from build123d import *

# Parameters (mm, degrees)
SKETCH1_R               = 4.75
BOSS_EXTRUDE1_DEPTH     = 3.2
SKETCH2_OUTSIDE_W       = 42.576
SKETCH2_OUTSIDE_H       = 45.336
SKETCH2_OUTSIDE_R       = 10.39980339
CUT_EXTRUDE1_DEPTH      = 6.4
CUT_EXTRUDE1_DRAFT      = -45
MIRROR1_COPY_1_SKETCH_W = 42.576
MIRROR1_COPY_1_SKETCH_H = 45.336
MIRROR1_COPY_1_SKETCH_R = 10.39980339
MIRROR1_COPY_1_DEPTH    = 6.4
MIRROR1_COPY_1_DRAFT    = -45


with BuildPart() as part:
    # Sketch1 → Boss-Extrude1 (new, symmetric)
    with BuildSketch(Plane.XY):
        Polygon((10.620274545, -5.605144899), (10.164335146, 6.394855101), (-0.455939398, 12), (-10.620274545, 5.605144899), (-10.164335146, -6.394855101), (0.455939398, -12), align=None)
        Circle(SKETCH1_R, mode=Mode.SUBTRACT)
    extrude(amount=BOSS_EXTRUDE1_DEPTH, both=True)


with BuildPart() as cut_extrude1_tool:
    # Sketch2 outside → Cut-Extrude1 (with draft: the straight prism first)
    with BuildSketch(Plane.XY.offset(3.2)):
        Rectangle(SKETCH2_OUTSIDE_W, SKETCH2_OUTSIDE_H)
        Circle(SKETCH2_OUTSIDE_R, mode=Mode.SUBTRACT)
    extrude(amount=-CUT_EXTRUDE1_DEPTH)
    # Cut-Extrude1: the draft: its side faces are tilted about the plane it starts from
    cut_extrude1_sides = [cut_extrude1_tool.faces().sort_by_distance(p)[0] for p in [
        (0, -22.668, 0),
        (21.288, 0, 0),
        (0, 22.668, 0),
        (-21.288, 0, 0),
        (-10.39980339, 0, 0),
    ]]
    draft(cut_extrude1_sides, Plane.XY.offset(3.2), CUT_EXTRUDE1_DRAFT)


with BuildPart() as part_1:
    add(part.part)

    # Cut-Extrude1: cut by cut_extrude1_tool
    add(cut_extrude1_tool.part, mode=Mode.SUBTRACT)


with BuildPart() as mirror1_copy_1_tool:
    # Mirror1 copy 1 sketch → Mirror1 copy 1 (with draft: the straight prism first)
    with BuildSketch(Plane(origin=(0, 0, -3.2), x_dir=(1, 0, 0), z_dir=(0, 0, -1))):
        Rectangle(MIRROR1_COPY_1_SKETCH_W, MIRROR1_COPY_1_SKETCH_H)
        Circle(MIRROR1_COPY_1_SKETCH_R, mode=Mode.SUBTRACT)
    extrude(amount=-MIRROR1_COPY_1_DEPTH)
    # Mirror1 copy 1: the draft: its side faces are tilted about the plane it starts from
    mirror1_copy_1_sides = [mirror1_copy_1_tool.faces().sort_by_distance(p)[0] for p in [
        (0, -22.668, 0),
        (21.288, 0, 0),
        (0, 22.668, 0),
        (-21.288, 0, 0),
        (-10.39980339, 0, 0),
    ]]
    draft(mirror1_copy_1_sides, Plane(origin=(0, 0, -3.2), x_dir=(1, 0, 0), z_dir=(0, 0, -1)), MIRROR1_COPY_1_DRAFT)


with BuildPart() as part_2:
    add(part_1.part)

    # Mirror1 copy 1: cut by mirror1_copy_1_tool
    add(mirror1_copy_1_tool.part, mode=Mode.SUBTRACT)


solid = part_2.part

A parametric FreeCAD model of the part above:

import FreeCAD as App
import Part
import Sketcher
from FreeCAD import Vector


def faces_at(feature, points):
    """Names of the faces that lie closest to the given points."""
    faces = feature.Shape.Faces
    near = lambda p: min(range(len(faces)), key=lambda i: faces[i].distToShape(Part.Vertex(*p))[0])
    return sorted({f"Face{near(p) + 1}" for p in points})


def add_polygon(sketch, points):
    """Adds a closed chain of lines whose ends are joined by coincident constraints."""
    first, n = sketch.GeometryCount, len(points)
    for a, b in zip(points, points[1:] + points[:1]):
        sketch.addGeometry(Part.LineSegment(App.Vector(*a, 0), App.Vector(*b, 0)), False)
    for i in range(n):
        sketch.addConstraint(Sketcher.Constraint("Coincident", first + i, 2, first + (i + 1) % n, 1))

doc = App.newDocument("Part")
params = doc.addObject("Spreadsheet::Sheet", "Params")
for row, (alias, value) in enumerate([
    ("sketch1_diameter", "9.5 mm"),
    ("pad1_length", "6.4 mm"),
    ("pad2_length", "6.4 mm"),
    ("draft_angle", "45 deg"),
    ("pad3_length", "6.4 mm"),
    ("draft2_angle", "45 deg"),
], start=1):
    params.set(f"A{row}", alias)
    params.set(f"B{row}", "=" + value)
    params.setAlias(f"B{row}", alias)

body = doc.addObject("PartDesign::Body", "Body")

# Sketch on XY plane
sketch1 = body.newObject("Sketcher::SketchObject", "Sketch")
sketch1.AttachmentSupport = (doc.getObject("XY_Plane"), [""])
sketch1.MapMode = "FlatFace"
add_polygon(sketch1, [(10.6, -5.6), (10.2, 6.4), (-0.5, 12), (-10.6, 5.6), (-10.2, -6.4), (0.5, -12)])  # lines 0-5
sketch1.addGeometry(Part.Circle(Vector(0, 0, 0), Vector(0, 0, 1), 4.8), False)  # 6
sketch1.addConstraint(Sketcher.Constraint("Coincident", 6, 3, -1, 1))
sketch1.addConstraint(Sketcher.Constraint("Symmetric", 0, 2, 3, 2, -1, 1))
sketch1.addConstraint(Sketcher.Constraint("Symmetric", 1, 2, 4, 2, -1, 1))
sketch1.addConstraint(Sketcher.Constraint("Symmetric", 2, 2, 5, 2, -1, 1))
sketch1.addConstraint(Sketcher.Constraint("Equal", 0, 1))
sketch1.addConstraint(Sketcher.Constraint("Equal", 1, 2))
sketch1.addConstraint(Sketcher.Constraint("Diameter", 6, 9.5))
sketch1.addConstraint(Sketcher.Constraint("DistanceY", -1, 1, 1, 2, 12.0))
sketch1.addConstraint(Sketcher.Constraint("DistanceY", 3, 2, 2, 2, 12.0))
sketch1.addConstraint(Sketcher.Constraint("Distance", 0, 12.008659))
sketch1.addConstraint(Sketcher.Constraint("DistanceX", 1, 2, -1, 1, 0.455939))
sketch1.setExpression("Constraints[12]", "Params.sketch1_diameter")
pad1 = body.newObject("PartDesign::Pad", "Pad")
pad1.Profile = sketch1
pad1.setExpression("Length", "Params.pad1_length")
pad1.Midplane = True
body2 = doc.addObject("PartDesign::Body", "Body001")

# Sketch on XY plane
sketch2 = body2.newObject("Sketcher::SketchObject", "Sketch001")
sketch2.AttachmentSupport = (doc.getObject("XY_Plane001"), [""])
sketch2.MapMode = "FlatFace"
sketch2.AttachmentOffset = App.Placement(Vector(0, 0, 3.2), App.Rotation())
add_polygon(sketch2, [(-21, 23), (-21, -23), (21, -23), (21, 23)])  # lines 0-3
sketch2.addGeometry(Part.Circle(Vector(0, 0, 0), Vector(0, 0, 1), 10), False)  # 4
sketch2.addConstraint(Sketcher.Constraint("Vertical", 0))
sketch2.addConstraint(Sketcher.Constraint("Horizontal", 1))
sketch2.addConstraint(Sketcher.Constraint("Vertical", 2))
sketch2.addConstraint(Sketcher.Constraint("Horizontal", 3))
sketch2.addConstraint(Sketcher.Constraint("Coincident", 4, 3, -1, 1))
sketch2.addConstraint(Sketcher.Constraint("Symmetric", 0, 2, 2, 2, -1, 1))
sketch2.addConstraint(Sketcher.Constraint("DistanceX", 1, 1, 1, 2, 42.576))
sketch2.addConstraint(Sketcher.Constraint("DistanceY", 0, 2, 0, 1, 45.336))
sketch2.addConstraint(Sketcher.Constraint("Diameter", 4, 20.799607))
pad2 = body2.newObject("PartDesign::Pad", "Pad001")
pad2.Profile = sketch2
pad2.setExpression("Length", "Params.pad2_length")
pad2.Reversed = True
doc.recompute()

datumplane = body2.newObject("PartDesign::Plane", "DatumPlane")
datumplane.AttachmentSupport = (doc.getObject("XY_Plane001"), [""])
datumplane.MapMode = "FlatFace"
datumplane.AttachmentOffset = App.Placement(Vector(0, 0, 3.2), App.Rotation())
draft = body2.newObject("PartDesign::Draft", "Draft")
draft.Base = (pad2, faces_at(pad2, [
    (0, -22.668, 0),
    (21.288, 0, 0),
    (0, 22.668, 0),
    (-21.288, 0, 0),
    (-10.4, 0, 0),
]))
draft.NeutralPlane = (datumplane, [""])
draft.setExpression("Angle", "Params.draft_angle")
draft.Reversed = True
doc.recompute()

boolean = body.newObject("PartDesign::Boolean", "Boolean")
boolean.Type = "Cut"
boolean.addObjects([body2])
body3 = doc.addObject("PartDesign::Body", "Body002")

# Sketch on XY plane
sketch3 = body3.newObject("Sketcher::SketchObject", "Sketch002")
sketch3.AttachmentSupport = (doc.getObject("XY_Plane002"), [""])
sketch3.MapMode = "FlatFace"
sketch3.AttachmentOffset = App.Placement(Vector(0, 0, -3.2), App.Rotation())
add_polygon(sketch3, [(-21, -23), (-21, 23), (21, 23), (21, -23)])  # lines 0-3
sketch3.addGeometry(Part.Circle(Vector(0, 0, 0), Vector(0, 0, 1), 10), False)  # 4
sketch3.addConstraint(Sketcher.Constraint("Vertical", 0))
sketch3.addConstraint(Sketcher.Constraint("Horizontal", 1))
sketch3.addConstraint(Sketcher.Constraint("Vertical", 2))
sketch3.addConstraint(Sketcher.Constraint("Horizontal", 3))
sketch3.addConstraint(Sketcher.Constraint("Coincident", 4, 3, -1, 1))
sketch3.addConstraint(Sketcher.Constraint("Symmetric", 0, 2, 2, 2, -1, 1))
sketch3.addConstraint(Sketcher.Constraint("DistanceX", 1, 1, 1, 2, 42.576))
sketch3.addConstraint(Sketcher.Constraint("DistanceY", 0, 1, 0, 2, 45.336))
sketch3.addConstraint(Sketcher.Constraint("Diameter", 4, 20.799607))
pad3 = body3.newObject("PartDesign::Pad", "Pad002")
pad3.Profile = sketch3
pad3.setExpression("Length", "Params.pad3_length")
doc.recompute()

datumplane2 = body3.newObject("PartDesign::Plane", "DatumPlane001")
datumplane2.AttachmentSupport = (doc.getObject("XY_Plane002"), [""])
datumplane2.MapMode = "FlatFace"
datumplane2.AttachmentOffset = App.Placement(Vector(0, 0, -3.2), App.Rotation())
draft2 = body3.newObject("PartDesign::Draft", "Draft001")
draft2.Base = (pad3, faces_at(pad3, [
    (0, -22.668, 0),
    (21.288, 0, 0),
    (0, 22.668, 0),
    (-21.288, 0, 0),
    (-10.4, 0, 0),
]))
draft2.NeutralPlane = (datumplane2, [""])
draft2.setExpression("Angle", "Params.draft2_angle")
draft2.Reversed = False
doc.recompute()

boolean2 = body.newObject("PartDesign::Boolean", "Boolean001")
boolean2.Type = "Cut"
boolean2.addObjects([body3])

doc.recompute()
